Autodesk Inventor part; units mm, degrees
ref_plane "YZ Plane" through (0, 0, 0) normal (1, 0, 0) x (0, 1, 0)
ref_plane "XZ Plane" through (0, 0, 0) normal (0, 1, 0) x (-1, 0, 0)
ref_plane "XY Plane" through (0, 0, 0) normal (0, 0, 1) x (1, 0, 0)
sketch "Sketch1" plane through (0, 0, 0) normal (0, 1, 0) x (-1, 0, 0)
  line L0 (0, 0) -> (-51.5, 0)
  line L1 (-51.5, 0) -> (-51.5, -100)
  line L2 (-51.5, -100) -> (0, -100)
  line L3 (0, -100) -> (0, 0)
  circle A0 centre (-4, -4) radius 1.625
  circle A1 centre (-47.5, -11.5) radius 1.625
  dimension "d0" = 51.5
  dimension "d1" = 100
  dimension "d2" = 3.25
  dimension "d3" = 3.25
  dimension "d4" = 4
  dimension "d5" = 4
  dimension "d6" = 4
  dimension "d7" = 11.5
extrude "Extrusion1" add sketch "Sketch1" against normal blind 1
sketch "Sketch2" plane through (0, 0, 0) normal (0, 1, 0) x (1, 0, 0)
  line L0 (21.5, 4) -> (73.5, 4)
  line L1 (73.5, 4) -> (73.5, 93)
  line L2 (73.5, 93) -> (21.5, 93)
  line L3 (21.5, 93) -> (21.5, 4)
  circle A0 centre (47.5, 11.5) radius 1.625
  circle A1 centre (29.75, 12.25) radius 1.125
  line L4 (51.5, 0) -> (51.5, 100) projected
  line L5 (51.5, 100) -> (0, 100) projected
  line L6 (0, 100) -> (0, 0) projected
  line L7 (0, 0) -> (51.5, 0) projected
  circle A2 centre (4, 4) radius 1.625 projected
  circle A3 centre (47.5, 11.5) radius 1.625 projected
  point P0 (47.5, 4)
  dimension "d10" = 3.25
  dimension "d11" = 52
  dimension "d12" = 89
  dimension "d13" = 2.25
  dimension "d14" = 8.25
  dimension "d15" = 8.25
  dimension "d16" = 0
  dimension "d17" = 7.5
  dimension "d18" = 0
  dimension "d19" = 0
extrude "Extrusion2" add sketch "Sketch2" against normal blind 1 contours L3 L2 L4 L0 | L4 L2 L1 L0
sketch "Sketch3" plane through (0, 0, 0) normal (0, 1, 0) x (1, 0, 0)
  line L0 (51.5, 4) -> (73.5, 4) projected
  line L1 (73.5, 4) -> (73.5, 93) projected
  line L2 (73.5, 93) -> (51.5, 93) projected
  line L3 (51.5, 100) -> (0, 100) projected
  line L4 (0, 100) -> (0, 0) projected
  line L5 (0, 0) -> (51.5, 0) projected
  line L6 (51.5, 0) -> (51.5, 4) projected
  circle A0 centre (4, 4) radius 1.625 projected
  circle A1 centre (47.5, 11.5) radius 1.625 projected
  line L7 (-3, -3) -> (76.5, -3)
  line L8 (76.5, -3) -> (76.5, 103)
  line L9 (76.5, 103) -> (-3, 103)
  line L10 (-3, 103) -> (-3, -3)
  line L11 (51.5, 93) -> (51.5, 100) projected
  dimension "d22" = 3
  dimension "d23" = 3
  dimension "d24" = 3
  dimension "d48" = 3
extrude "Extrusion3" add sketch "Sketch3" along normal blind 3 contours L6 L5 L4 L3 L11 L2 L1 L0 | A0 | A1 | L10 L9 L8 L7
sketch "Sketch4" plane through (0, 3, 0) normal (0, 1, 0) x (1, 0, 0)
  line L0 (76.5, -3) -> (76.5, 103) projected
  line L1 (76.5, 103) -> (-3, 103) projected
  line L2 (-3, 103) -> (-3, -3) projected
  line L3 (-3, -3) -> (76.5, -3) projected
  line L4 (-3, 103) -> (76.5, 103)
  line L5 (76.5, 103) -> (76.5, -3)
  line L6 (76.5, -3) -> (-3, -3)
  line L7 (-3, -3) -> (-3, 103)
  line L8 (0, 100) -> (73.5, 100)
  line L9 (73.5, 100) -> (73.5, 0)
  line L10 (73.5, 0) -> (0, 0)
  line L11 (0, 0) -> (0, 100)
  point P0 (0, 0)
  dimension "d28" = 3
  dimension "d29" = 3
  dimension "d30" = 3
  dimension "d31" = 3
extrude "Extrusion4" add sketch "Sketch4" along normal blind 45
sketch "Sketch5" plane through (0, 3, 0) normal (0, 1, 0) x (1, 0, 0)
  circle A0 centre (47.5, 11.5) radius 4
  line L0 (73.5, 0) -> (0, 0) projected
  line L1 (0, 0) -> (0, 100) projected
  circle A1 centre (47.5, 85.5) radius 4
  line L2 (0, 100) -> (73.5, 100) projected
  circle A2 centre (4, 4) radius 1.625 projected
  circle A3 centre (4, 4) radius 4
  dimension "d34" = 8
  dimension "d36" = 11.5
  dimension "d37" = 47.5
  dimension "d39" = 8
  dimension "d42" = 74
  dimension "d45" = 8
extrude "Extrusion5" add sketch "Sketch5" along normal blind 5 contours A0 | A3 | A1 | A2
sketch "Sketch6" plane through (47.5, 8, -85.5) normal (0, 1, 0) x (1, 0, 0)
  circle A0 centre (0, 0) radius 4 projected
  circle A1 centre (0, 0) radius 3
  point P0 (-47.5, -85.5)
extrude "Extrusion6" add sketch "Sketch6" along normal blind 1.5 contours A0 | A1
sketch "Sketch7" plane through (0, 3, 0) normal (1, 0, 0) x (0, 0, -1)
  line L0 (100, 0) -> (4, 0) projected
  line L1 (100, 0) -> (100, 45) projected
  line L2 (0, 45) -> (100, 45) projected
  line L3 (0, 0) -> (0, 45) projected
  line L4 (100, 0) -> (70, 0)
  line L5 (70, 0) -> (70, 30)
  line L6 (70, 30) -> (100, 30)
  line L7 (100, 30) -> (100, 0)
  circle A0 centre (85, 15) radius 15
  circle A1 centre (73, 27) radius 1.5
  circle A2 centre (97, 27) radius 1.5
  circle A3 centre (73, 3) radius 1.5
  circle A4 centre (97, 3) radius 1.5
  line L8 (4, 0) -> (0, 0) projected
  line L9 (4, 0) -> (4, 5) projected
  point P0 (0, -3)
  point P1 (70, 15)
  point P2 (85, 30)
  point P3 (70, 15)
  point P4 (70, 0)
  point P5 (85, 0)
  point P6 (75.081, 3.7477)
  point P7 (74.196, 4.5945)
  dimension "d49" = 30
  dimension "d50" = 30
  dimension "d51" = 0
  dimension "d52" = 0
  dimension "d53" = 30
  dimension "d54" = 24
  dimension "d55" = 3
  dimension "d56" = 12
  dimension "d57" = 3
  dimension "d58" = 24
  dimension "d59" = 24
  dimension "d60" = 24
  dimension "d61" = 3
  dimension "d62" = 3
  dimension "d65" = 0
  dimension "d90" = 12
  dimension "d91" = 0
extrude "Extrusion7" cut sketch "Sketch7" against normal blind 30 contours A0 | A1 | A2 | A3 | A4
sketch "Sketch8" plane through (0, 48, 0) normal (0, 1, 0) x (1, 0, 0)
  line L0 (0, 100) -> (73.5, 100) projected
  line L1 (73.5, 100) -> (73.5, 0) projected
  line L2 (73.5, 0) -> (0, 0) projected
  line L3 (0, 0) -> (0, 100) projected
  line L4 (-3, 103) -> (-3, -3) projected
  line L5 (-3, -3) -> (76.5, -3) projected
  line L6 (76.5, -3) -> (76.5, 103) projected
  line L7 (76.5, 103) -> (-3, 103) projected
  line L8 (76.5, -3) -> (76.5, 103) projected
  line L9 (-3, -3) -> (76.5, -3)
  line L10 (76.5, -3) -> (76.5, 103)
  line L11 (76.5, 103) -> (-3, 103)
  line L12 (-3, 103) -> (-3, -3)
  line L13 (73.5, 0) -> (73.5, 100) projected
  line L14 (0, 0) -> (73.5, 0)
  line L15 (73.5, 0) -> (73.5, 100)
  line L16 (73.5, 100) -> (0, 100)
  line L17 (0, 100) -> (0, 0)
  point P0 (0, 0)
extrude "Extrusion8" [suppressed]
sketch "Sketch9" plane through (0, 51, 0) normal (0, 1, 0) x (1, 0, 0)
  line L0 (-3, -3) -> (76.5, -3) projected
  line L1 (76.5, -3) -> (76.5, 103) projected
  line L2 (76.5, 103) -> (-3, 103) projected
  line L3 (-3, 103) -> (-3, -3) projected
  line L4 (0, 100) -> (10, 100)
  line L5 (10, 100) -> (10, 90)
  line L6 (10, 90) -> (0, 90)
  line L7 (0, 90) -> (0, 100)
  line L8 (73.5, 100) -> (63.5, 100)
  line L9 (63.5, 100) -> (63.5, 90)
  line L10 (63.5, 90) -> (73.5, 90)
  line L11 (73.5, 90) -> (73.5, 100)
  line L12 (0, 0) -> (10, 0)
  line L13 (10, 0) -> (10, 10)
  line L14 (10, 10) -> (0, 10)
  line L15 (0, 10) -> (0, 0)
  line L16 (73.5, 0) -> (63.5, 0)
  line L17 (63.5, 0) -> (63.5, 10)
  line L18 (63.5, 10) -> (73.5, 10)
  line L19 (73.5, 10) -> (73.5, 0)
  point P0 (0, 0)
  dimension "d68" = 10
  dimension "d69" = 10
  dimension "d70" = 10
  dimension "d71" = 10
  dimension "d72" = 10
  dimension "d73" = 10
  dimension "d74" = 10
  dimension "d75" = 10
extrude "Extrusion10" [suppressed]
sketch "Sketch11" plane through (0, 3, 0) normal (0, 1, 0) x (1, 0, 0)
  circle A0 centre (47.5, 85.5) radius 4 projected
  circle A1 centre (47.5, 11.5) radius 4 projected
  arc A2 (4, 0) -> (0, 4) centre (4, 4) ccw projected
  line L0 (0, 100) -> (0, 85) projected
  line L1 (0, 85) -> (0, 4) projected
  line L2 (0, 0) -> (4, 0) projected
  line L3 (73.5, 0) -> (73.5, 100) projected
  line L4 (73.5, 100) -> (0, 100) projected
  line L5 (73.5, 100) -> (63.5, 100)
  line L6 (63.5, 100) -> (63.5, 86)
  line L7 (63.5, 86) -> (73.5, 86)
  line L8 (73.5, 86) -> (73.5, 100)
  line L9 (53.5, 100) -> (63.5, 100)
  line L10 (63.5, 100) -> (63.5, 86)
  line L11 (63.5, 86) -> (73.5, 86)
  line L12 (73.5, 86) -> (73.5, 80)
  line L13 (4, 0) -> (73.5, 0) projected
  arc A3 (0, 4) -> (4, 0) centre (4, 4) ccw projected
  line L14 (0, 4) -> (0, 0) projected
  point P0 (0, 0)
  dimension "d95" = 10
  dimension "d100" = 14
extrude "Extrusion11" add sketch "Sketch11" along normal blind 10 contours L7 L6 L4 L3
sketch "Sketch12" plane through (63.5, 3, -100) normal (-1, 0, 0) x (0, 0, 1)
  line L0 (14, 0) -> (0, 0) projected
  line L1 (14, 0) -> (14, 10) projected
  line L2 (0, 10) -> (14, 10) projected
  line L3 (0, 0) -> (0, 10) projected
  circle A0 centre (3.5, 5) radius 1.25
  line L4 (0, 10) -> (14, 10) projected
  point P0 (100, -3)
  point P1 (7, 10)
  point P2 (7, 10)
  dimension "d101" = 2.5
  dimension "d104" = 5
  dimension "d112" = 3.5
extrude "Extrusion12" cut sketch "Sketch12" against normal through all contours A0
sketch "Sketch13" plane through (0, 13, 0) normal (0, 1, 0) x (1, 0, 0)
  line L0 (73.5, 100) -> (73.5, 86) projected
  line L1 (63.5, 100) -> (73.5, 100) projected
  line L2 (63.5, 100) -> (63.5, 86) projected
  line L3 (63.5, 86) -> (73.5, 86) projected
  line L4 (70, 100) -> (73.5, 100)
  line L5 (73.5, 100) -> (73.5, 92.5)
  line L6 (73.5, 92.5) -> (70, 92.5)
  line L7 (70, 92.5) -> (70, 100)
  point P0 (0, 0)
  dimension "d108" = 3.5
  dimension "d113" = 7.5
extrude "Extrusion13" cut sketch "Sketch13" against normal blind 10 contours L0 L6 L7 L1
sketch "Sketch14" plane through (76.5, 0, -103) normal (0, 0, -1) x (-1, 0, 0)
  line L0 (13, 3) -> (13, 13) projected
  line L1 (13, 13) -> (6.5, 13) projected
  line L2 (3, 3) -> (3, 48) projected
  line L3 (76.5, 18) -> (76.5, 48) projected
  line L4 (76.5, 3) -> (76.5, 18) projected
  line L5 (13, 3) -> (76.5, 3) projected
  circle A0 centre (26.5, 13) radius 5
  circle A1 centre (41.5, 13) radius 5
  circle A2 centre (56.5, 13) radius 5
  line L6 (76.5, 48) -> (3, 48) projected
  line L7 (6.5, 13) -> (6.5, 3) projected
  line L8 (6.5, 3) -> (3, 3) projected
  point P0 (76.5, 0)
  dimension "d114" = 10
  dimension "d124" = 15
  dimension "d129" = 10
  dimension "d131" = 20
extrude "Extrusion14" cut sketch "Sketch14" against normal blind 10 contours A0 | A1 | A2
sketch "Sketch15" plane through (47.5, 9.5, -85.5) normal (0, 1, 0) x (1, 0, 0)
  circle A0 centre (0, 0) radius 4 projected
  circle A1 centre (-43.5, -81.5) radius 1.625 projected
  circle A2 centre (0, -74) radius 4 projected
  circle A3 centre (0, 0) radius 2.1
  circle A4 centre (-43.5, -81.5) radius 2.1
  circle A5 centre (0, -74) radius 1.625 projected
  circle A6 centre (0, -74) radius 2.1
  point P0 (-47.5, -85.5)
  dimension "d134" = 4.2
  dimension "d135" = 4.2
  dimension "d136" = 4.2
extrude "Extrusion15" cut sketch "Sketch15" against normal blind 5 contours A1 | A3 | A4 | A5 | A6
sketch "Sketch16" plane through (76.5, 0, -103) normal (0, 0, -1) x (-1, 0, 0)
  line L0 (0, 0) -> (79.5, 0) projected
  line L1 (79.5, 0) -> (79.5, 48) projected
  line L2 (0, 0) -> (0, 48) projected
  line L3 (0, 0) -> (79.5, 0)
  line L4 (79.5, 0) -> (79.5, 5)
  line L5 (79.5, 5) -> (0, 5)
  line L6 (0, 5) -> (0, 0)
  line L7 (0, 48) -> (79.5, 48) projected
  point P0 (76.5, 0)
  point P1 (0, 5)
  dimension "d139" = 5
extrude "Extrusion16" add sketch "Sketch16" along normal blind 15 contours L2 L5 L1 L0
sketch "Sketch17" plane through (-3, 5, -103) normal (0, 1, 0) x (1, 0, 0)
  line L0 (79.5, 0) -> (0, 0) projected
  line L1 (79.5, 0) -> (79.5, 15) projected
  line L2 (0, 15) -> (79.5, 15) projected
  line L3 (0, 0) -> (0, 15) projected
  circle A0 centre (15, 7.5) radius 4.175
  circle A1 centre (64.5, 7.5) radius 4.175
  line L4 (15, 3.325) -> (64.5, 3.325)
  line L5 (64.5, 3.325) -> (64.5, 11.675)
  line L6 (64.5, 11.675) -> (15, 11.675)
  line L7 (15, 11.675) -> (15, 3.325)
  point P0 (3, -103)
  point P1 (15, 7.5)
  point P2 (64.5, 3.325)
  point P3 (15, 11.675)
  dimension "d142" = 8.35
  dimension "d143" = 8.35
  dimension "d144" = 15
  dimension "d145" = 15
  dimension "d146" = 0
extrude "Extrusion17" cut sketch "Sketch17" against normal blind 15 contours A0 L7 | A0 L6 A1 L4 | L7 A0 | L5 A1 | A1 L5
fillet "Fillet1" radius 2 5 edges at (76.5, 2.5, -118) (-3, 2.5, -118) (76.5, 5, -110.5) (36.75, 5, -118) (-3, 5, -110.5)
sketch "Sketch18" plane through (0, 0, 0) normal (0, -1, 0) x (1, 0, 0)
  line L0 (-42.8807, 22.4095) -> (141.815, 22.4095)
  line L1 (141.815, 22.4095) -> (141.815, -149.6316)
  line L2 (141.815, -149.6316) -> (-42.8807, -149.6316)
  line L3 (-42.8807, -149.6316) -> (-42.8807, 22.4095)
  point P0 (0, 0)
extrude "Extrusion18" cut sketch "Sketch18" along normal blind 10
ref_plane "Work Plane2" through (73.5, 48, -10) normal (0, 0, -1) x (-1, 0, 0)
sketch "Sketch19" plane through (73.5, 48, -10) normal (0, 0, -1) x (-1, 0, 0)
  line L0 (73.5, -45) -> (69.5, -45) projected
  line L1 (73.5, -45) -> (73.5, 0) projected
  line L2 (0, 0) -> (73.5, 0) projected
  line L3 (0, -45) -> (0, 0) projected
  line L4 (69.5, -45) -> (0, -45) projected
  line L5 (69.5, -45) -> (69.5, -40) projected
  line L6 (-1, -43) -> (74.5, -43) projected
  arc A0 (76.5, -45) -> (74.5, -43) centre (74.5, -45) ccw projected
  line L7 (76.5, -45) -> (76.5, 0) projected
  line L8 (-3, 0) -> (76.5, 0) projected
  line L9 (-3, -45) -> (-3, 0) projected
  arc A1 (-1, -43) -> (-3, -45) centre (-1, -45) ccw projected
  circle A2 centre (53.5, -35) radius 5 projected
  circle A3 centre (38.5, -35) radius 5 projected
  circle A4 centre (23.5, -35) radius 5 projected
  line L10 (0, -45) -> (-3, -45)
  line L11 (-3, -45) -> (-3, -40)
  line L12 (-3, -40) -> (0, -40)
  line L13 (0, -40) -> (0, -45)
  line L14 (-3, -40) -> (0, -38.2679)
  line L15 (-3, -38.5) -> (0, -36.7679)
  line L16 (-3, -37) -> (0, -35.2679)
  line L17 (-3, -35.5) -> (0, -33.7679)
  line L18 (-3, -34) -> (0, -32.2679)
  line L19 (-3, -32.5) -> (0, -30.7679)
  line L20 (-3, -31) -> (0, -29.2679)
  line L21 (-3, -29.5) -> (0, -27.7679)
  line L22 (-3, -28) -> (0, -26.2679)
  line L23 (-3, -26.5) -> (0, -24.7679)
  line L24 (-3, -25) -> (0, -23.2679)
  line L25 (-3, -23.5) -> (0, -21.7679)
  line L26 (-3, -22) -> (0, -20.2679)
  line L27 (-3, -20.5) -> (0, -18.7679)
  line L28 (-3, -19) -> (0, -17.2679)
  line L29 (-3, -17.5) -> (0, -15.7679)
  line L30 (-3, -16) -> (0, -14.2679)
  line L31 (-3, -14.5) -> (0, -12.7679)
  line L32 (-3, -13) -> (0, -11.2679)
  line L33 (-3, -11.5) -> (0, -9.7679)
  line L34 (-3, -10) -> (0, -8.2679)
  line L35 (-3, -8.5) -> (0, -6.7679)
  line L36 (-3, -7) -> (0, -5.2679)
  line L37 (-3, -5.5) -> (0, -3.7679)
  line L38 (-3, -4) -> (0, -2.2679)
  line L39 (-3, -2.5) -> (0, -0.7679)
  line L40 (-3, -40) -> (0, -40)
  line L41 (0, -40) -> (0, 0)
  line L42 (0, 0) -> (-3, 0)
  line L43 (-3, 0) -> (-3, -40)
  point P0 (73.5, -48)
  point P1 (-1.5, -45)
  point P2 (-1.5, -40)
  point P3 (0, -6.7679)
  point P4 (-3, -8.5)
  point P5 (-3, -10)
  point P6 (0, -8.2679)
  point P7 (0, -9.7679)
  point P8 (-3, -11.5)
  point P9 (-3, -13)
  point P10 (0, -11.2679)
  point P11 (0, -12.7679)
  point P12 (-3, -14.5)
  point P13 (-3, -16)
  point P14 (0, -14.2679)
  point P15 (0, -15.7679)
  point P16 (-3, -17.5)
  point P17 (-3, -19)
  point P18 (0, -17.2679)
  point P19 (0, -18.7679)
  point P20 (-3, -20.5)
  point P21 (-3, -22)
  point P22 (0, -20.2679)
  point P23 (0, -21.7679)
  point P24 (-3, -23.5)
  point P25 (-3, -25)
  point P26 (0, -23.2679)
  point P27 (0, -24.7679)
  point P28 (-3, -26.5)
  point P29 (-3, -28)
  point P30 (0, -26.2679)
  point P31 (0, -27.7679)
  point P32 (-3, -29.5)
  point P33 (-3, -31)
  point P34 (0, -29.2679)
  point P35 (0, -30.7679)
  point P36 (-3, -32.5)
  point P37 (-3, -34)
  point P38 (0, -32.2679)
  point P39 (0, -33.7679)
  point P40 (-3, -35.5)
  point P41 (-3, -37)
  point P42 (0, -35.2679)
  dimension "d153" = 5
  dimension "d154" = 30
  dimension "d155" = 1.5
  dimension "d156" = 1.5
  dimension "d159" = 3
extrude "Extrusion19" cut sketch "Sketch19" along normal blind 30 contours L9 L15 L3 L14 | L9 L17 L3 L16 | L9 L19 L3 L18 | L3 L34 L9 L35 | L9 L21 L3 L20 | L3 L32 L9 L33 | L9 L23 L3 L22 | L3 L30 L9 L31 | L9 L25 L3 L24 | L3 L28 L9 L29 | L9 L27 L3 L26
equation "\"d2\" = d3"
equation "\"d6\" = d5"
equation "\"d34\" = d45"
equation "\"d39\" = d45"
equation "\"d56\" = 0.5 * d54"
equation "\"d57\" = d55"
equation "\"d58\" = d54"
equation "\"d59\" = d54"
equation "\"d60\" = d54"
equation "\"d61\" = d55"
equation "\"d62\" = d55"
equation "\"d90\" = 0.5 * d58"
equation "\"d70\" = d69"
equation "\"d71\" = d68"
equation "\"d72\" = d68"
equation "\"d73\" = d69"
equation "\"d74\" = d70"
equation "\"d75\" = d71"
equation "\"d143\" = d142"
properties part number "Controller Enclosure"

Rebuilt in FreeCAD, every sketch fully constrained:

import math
import FreeCAD as App
import Part
import Sketcher

V = App.Vector
Q = App.Units.Quantity


def edges_at(feature, points):
    """Names of the edges that pass closest to the given points."""
    edges = feature.Shape.Edges
    near = lambda p: min(range(len(edges)), key=lambda i: edges[i].distToShape(Part.Vertex(*p))[0])
    return sorted({f"Edge{near(p) + 1}" for p in points})

doc = App.newDocument("Part")
body = doc.addObject("PartDesign::Body", "Body")

# Sketch on XZ plane
sketch1 = body.newObject("Sketcher::SketchObject", "Sketch")
sketch1.AttachmentSupport = (doc.getObject("XZ_Plane"), [""])
sketch1.MapMode = "FlatFace"
sketch1.addGeometry(Part.LineSegment(V(0, -100, 0), V(0, 0, 0)), False)
sketch1.addGeometry(Part.LineSegment(V(0, 0, 0), V(51.5, 0, 0)), False)
sketch1.addGeometry(Part.LineSegment(V(51.5, 0, 0), V(51.5, -100, 0)), False)
sketch1.addGeometry(Part.LineSegment(V(51.5, -100, 0), V(0, -100, 0)), False)
sketch1.addGeometry(Part.Circle(V(47.5, -11.5, 0), V(0, 0, 1), 1.6), False)
sketch1.addGeometry(Part.Circle(V(4, -4, 0), V(0, 0, 1), 1.6), False)
sketch1.addConstraint(Sketcher.Constraint("Coincident", 0, 2, 1, 1))
sketch1.addConstraint(Sketcher.Constraint("Coincident", 1, 2, 2, 1))
sketch1.addConstraint(Sketcher.Constraint("Coincident", 2, 2, 3, 1))
sketch1.addConstraint(Sketcher.Constraint("Coincident", 3, 2, 0, 1))
sketch1.addConstraint(Sketcher.Constraint("Vertical", 0))
sketch1.addConstraint(Sketcher.Constraint("Horizontal", 1))
sketch1.addConstraint(Sketcher.Constraint("Vertical", 2))
sketch1.addConstraint(Sketcher.Constraint("Horizontal", 3))
sketch1.addConstraint(Sketcher.Constraint("Coincident", 0, 2, -1, 1))
sketch1.addConstraint(Sketcher.Constraint("Equal", 4, 5))
sketch1.addConstraint(Sketcher.Constraint("Diameter", 4, Q("3.25 mm")))
sketch1.addConstraint(Sketcher.Constraint("DistanceY", 0, 1, 0, 2, Q("100 mm")))
sketch1.addConstraint(Sketcher.Constraint("DistanceX", 1, 1, 1, 2, Q("51.5 mm")))
sketch1.addConstraint(Sketcher.Constraint("DistanceX", -1, 1, 5, 3, Q("4 mm")))
sketch1.addConstraint(Sketcher.Constraint("DistanceY", 5, 3, -1, 1, Q("4 mm")))
sketch1.addConstraint(Sketcher.Constraint("DistanceX", 4, 3, 1, 2, Q("4 mm")))
sketch1.addConstraint(Sketcher.Constraint("DistanceY", 4, 3, -1, 1, Q("11.5 mm")))
pad1 = body.newObject("PartDesign::Pad", "Pad")
pad1.Profile = sketch1
pad1.Length = 1

# Sketch on XZ plane
sketch2 = body.newObject("Sketcher::SketchObject", "Sketch001")
sketch2.AttachmentSupport = (doc.getObject("XZ_Plane"), [""])
sketch2.MapMode = "FlatFace"
sketch2.addGeometry(Part.LineSegment(V(21.5, -93, 0), V(21.5, -4, 0)), False)
sketch2.addGeometry(Part.LineSegment(V(21.5, -4, 0), V(73.5, -4, 0)), False)
sketch2.addGeometry(Part.LineSegment(V(73.5, -4, 0), V(73.5, -93, 0)), False)
sketch2.addGeometry(Part.LineSegment(V(73.5, -93, 0), V(21.5, -93, 0)), False)
sketch2.addGeometry(Part.Circle(V(29.8, -12.2, 0), V(0, 0, 1), 1.1), False)
sketch2.addGeometry(Part.Circle(V(47.5, -11.5, 0), V(0, 0, 1), 1.6), False)
sketch2.addConstraint(Sketcher.Constraint("Coincident", 0, 2, 1, 1))
sketch2.addConstraint(Sketcher.Constraint("Coincident", 1, 2, 2, 1))
sketch2.addConstraint(Sketcher.Constraint("Coincident", 2, 2, 3, 1))
sketch2.addConstraint(Sketcher.Constraint("Coincident", 3, 2, 0, 1))
sketch2.addConstraint(Sketcher.Constraint("Vertical", 0))
sketch2.addConstraint(Sketcher.Constraint("Horizontal", 1))
sketch2.addConstraint(Sketcher.Constraint("Vertical", 2))
sketch2.addConstraint(Sketcher.Constraint("Horizontal", 3))
sketch2.addConstraint(Sketcher.Constraint("Diameter", 4, Q("2.25 mm")))
sketch2.addConstraint(Sketcher.Constraint("Diameter", 5, Q("3.25 mm")))
sketch2.addConstraint(Sketcher.Constraint("DistanceX", 1, 1, 1, 2, Q("52 mm")))
sketch2.addConstraint(Sketcher.Constraint("DistanceY", 0, 1, 0, 2, Q("89 mm")))
sketch2.addConstraint(Sketcher.Constraint("DistanceY", 5, 3, 0, 2, Q("7.5 mm")))
sketch2.addConstraint(Sketcher.Constraint("DistanceX", 0, 2, 4, 3, Q("8.25 mm")))
sketch2.addConstraint(Sketcher.Constraint("DistanceY", 4, 3, 0, 2, Q("8.25 mm")))
sketch2.addConstraint(Sketcher.Constraint("DistanceY", 0, 2, -1, 1, Q("4 mm")))
sketch2.addConstraint(Sketcher.Constraint("DistanceX", 0, 2, 5, 3, Q("26 mm")))
sketch2.addConstraint(Sketcher.Constraint("DistanceX", -1, 1, 5, 3, Q("47.5 mm")))
pad2 = body.newObject("PartDesign::Pad", "Pad001")
pad2.Profile = sketch2
pad2.Length = 1

# Sketch on XZ plane
sketch3 = body.newObject("Sketcher::SketchObject", "Sketch002")
sketch3.AttachmentSupport = (doc.getObject("XZ_Plane"), [""])
sketch3.MapMode = "FlatFace"
sketch3.addGeometry(Part.LineSegment(V(-3, -103, 0), V(-3, 3, 0)), False)
sketch3.addGeometry(Part.LineSegment(V(-3, 3, 0), V(76, 3, 0)), False)
sketch3.addGeometry(Part.LineSegment(V(76, 3, 0), V(76, -103, 0)), False)
sketch3.addGeometry(Part.LineSegment(V(76, -103, 0), V(-3, -103, 0)), False)
sketch3.addConstraint(Sketcher.Constraint("Coincident", 0, 2, 1, 1))
sketch3.addConstraint(Sketcher.Constraint("Coincident", 1, 2, 2, 1))
sketch3.addConstraint(Sketcher.Constraint("Coincident", 2, 2, 3, 1))
sketch3.addConstraint(Sketcher.Constraint("Coincident", 3, 2, 0, 1))
sketch3.addConstraint(Sketcher.Constraint("Vertical", 0))
sketch3.addConstraint(Sketcher.Constraint("Horizontal", 1))
sketch3.addConstraint(Sketcher.Constraint("Vertical", 2))
sketch3.addConstraint(Sketcher.Constraint("Horizontal", 3))
sketch3.addConstraint(Sketcher.Constraint("DistanceX", 0, 2, -1, 1, Q("3 mm")))
sketch3.addConstraint(Sketcher.Constraint("DistanceY", -1, 1, 0, 2, Q("3 mm")))
sketch3.addConstraint(Sketcher.Constraint("DistanceY", 0, 1, 0, 2, Q("106 mm")))
sketch3.addConstraint(Sketcher.Constraint("DistanceX", 1, 1, 1, 2, Q("79.5 mm")))
pad3 = body.newObject("PartDesign::Pad", "Pad002")
pad3.Profile = sketch3
pad3.Length = 3
pad3.Reversed = True

# Sketch on XZ plane
sketch4 = body.newObject("Sketcher::SketchObject", "Sketch003")
sketch4.AttachmentSupport = (doc.getObject("XZ_Plane"), [""])
sketch4.MapMode = "FlatFace"
sketch4.AttachmentOffset = App.Placement(V(0, 0, -3), App.Rotation())
sketch4.addGeometry(Part.LineSegment(V(-3, 3, 0), V(76, 3, 0)), False)
sketch4.addGeometry(Part.LineSegment(V(76, 3, 0), V(76, -103, 0)), False)
sketch4.addGeometry(Part.LineSegment(V(76, -103, 0), V(-3, -103, 0)), False)
sketch4.addGeometry(Part.LineSegment(V(-3, -103, 0), V(-3, 3, 0)), False)
sketch4.addGeometry(Part.LineSegment(V(0, 0, 0), V(0, -100, 0)), False)
sketch4.addGeometry(Part.LineSegment(V(0, -100, 0), V(74, -100, 0)), False)
sketch4.addGeometry(Part.LineSegment(V(74, -100, 0), V(74, 0, 0)), False)
sketch4.addGeometry(Part.LineSegment(V(74, 0, 0), V(0, 0, 0)), False)
sketch4.addConstraint(Sketcher.Constraint("Coincident", 0, 2, 1, 1))
sketch4.addConstraint(Sketcher.Constraint("Coincident", 1, 2, 2, 1))
sketch4.addConstraint(Sketcher.Constraint("Coincident", 2, 2, 3, 1))
sketch4.addConstraint(Sketcher.Constraint("Coincident", 3, 2, 0, 1))
sketch4.addConstraint(Sketcher.Constraint("Coincident", 4, 2, 5, 1))
sketch4.addConstraint(Sketcher.Constraint("Coincident", 5, 2, 6, 1))
sketch4.addConstraint(Sketcher.Constraint("Coincident", 6, 2, 7, 1))
sketch4.addConstraint(Sketcher.Constraint("Coincident", 7, 2, 4, 1))
sketch4.addConstraint(Sketcher.Constraint("Horizontal", 0))
sketch4.addConstraint(Sketcher.Constraint("Vertical", 1))
sketch4.addConstraint(Sketcher.Constraint("Horizontal", 2))
sketch4.addConstraint(Sketcher.Constraint("Vertical", 3))
sketch4.addConstraint(Sketcher.Constraint("Vertical", 4))
sketch4.addConstraint(Sketcher.Constraint("Horizontal", 5))
sketch4.addConstraint(Sketcher.Constraint("Vertical", 6))
sketch4.addConstraint(Sketcher.Constraint("Horizontal", 7))
sketch4.addConstraint(Sketcher.Constraint("Coincident", 7, 2, -1, 1))
sketch4.addConstraint(Sketcher.Constraint("DistanceY", -1, 1, 0, 2, Q("3 mm")))
sketch4.addConstraint(Sketcher.Constraint("DistanceX", 2, 2, -1, 1, Q("3 mm")))
sketch4.addConstraint(Sketcher.Constraint("DistanceY", 2, 2, 4, 2, Q("3 mm")))
sketch4.addConstraint(Sketcher.Constraint("DistanceX", 5, 2, 1, 2, Q("3 mm")))
sketch4.addConstraint(Sketcher.Constraint("DistanceY", 1, 2, 1, 1, Q("106 mm")))
sketch4.addConstraint(Sketcher.Constraint("DistanceX", 0, 1, 0, 2, Q("79.5 mm")))
pad4 = body.newObject("PartDesign::Pad", "Pad003")
pad4.Profile = sketch4
pad4.Length = 45
pad4.Reversed = True

# Sketch on XZ plane
sketch5 = body.newObject("Sketcher::SketchObject", "Sketch004")
sketch5.AttachmentSupport = (doc.getObject("XZ_Plane"), [""])
sketch5.MapMode = "FlatFace"
sketch5.AttachmentOffset = App.Placement(V(0, 0, -3), App.Rotation())
sketch5.addGeometry(Part.Circle(V(47.5, -11.5, 0), V(0, 0, 1), 4), False)
sketch5.addGeometry(Part.Circle(V(4, -4, 0), V(0, 0, 1), 4), False)
sketch5.addGeometry(Part.Circle(V(47.5, -85.5, 0), V(0, 0, 1), 4), False)
sketch5.addConstraint(Sketcher.Constraint("Equal", 0, 1))
sketch5.addConstraint(Sketcher.Constraint("Equal", 1, 2))
sketch5.addConstraint(Sketcher.Constraint("Vertical", 0, 3, 2, 3))
sketch5.addConstraint(Sketcher.Constraint("Diameter", 0, Q("8 mm")))
sketch5.addConstraint(Sketcher.Constraint("DistanceY", 2, 3, 0, 3, Q("74 mm")))
sketch5.addConstraint(Sketcher.Constraint("DistanceX", -1, 1, 0, 3, Q("47.5 mm")))
sketch5.addConstraint(Sketcher.Constraint("DistanceY", 0, 3, -1, 1, Q("11.5 mm")))
sketch5.addConstraint(Sketcher.Constraint("DistanceX", -1, 1, 1, 3, Q("4 mm")))
sketch5.addConstraint(Sketcher.Constraint("DistanceY", 1, 3, -1, 1, Q("4 mm")))
pad5 = body.newObject("PartDesign::Pad", "Pad004")
pad5.Profile = sketch5
pad5.Length = 5
pad5.Reversed = True

# Sketch on XZ plane
sketch6 = body.newObject("Sketcher::SketchObject", "Sketch005")
sketch6.AttachmentSupport = (doc.getObject("XZ_Plane"), [""])
sketch6.MapMode = "FlatFace"
sketch6.AttachmentOffset = App.Placement(V(0, 0, -8), App.Rotation())
sketch6.addGeometry(Part.Circle(V(47.5, -85.5, 0), V(0, 0, 1), 4), False)
sketch6.addConstraint(Sketcher.Constraint("Diameter", 0, Q("8 mm")))
sketch6.addConstraint(Sketcher.Constraint("DistanceX", -1, 1, 0, 3, Q("47.5 mm")))
sketch6.addConstraint(Sketcher.Constraint("DistanceY", 0, 3, -1, 1, Q("85.5 mm")))
pad6 = body.newObject("PartDesign::Pad", "Pad005")
pad6.Profile = sketch6
pad6.Length = 1.5
pad6.Reversed = True

# Sketch on YZ plane
sketch7 = body.newObject("Sketcher::SketchObject", "Sketch006")
sketch7.AttachmentSupport = (doc.getObject("YZ_Plane"), [""])
sketch7.MapMode = "FlatFace"
sketch7.addGeometry(Part.Circle(V(18, -85, 0), V(0, 0, 1), 15), False)
sketch7.addGeometry(Part.Circle(V(30, -73, 0), V(0, 0, 1), 1.5), False)
sketch7.addGeometry(Part.Circle(V(30, -97, 0), V(0, 0, 1), 1.5), False)
sketch7.addGeometry(Part.Circle(V(6, -73, 0), V(0, 0, 1), 1.5), False)
sketch7.addGeometry(Part.Circle(V(6, -97, 0), V(0, 0, 1), 1.5), False)
sketch7.addConstraint(Sketcher.Constraint("Equal", 1, 2))
sketch7.addConstraint(Sketcher.Constraint("Equal", 2, 3))
sketch7.addConstraint(Sketcher.Constraint("Equal", 3, 4))
sketch7.addConstraint(Sketcher.Constraint("Horizontal", 1, 3, 3, 3))
sketch7.addConstraint(Sketcher.Constraint("Horizontal", 2, 3, 4, 3))
sketch7.addConstraint(Sketcher.Constraint("Vertical", 1, 3, 2, 3))
sketch7.addConstraint(Sketcher.Constraint("Vertical", 3, 3, 4, 3))
sketch7.addConstraint(Sketcher.Constraint("Diameter", 0, Q("30 mm")))
sketch7.addConstraint(Sketcher.Constraint("Diameter", 1, Q("3 mm")))
sketch7.addConstraint(Sketcher.Constraint("DistanceX", -1, 1, 1, 3, Q("30 mm")))
sketch7.addConstraint(Sketcher.Constraint("DistanceX", 0, 3, 1, 3, Q("12 mm")))
sketch7.addConstraint(Sketcher.Constraint("DistanceY", 0, 3, 1, 3, Q("12 mm")))
sketch7.addConstraint(Sketcher.Constraint("DistanceY", 2, 3, 0, 3, Q("12 mm")))
sketch7.addConstraint(Sketcher.Constraint("DistanceX", 3, 3, 0, 3, Q("12 mm")))
sketch7.addConstraint(Sketcher.Constraint("DistanceY", 0, 3, -1, 1, Q("85 mm")))
pocket1 = body.newObject("PartDesign::Pocket", "Pocket")
pocket1.Profile = sketch7
pocket1.Length = 30

# Sketch on XZ plane
sketch8 = body.newObject("Sketcher::SketchObject", "Sketch007")
sketch8.AttachmentSupport = (doc.getObject("XZ_Plane"), [""])
sketch8.MapMode = "FlatFace"
sketch8.AttachmentOffset = App.Placement(V(0, 0, -3), App.Rotation())
sketch8.addGeometry(Part.LineSegment(V(64, -86, 0), V(74, -86, 0)), False)
sketch8.addGeometry(Part.LineSegment(V(74, -86, 0), V(74, -100, 0)), False)
sketch8.addGeometry(Part.LineSegment(V(74, -100, 0), V(64, -100, 0)), False)
sketch8.addGeometry(Part.LineSegment(V(64, -100, 0), V(64, -86, 0)), False)
sketch8.addConstraint(Sketcher.Constraint("Coincident", 0, 2, 1, 1))
sketch8.addConstraint(Sketcher.Constraint("Coincident", 1, 2, 2, 1))
sketch8.addConstraint(Sketcher.Constraint("Coincident", 2, 2, 3, 1))
sketch8.addConstraint(Sketcher.Constraint("Coincident", 3, 2, 0, 1))
sketch8.addConstraint(Sketcher.Constraint("Horizontal", 0))
sketch8.addConstraint(Sketcher.Constraint("Vertical", 1))
sketch8.addConstraint(Sketcher.Constraint("Horizontal", 2))
sketch8.addConstraint(Sketcher.Constraint("Vertical", 3))
sketch8.addConstraint(Sketcher.Constraint("DistanceX", 0, 1, 0, 2, Q("10 mm")))
sketch8.addConstraint(Sketcher.Constraint("DistanceY", 1, 2, 1, 1, Q("14 mm")))
sketch8.addConstraint(Sketcher.Constraint("DistanceY", 0, 2, -1, 1, Q("86 mm")))
sketch8.addConstraint(Sketcher.Constraint("DistanceX", -1, 1, 0, 2, Q("73.5 mm")))
pad7 = body.newObject("PartDesign::Pad", "Pad006")
pad7.Profile = sketch8
pad7.Length = 10
pad7.Reversed = True

# Sketch on YZ plane
sketch9 = body.newObject("Sketcher::SketchObject", "Sketch008")
sketch9.AttachmentSupport = (doc.getObject("YZ_Plane"), [""])
sketch9.MapMode = "FlatFace"
sketch9.AttachmentOffset = App.Placement(V(0, 0, 63.5), App.Rotation())
sketch9.addGeometry(Part.Circle(V(8, -96.5, 0), V(0, 0, 1), 1.2), False)
sketch9.addConstraint(Sketcher.Constraint("Diameter", 0, Q("2.5 mm")))
sketch9.addConstraint(Sketcher.Constraint("DistanceX", -1, 1, 0, 3, Q("8 mm")))
sketch9.addConstraint(Sketcher.Constraint("DistanceY", 0, 3, -1, 1, Q("96.5 mm")))
pocket2 = body.newObject("PartDesign::Pocket", "Pocket001")
pocket2.Profile = sketch9
pocket2.Type = "ThroughAll"
pocket2.Reversed = True

# Sketch on XZ plane
sketch10 = body.newObject("Sketcher::SketchObject", "Sketch009")
sketch10.AttachmentSupport = (doc.getObject("XZ_Plane"), [""])
sketch10.MapMode = "FlatFace"
sketch10.AttachmentOffset = App.Placement(V(0, 0, -13), App.Rotation())
sketch10.addGeometry(Part.LineSegment(V(73.5, -92.5, 0), V(73.5, -100, 0)), False)
sketch10.addGeometry(Part.LineSegment(V(73.5, -100, 0), V(70, -100, 0)), False)
sketch10.addGeometry(Part.LineSegment(V(70, -100, 0), V(70, -92.5, 0)), False)
sketch10.addGeometry(Part.LineSegment(V(70, -92.5, 0), V(73.5, -92.5, 0)), False)
sketch10.addConstraint(Sketcher.Constraint("Coincident", 0, 2, 1, 1))
sketch10.addConstraint(Sketcher.Constraint("Coincident", 1, 2, 2, 1))
sketch10.addConstraint(Sketcher.Constraint("Coincident", 2, 2, 3, 1))
sketch10.addConstraint(Sketcher.Constraint("Coincident", 3, 2, 0, 1))
sketch10.addConstraint(Sketcher.Constraint("Vertical", 0))
sketch10.addConstraint(Sketcher.Constraint("Horizontal", 1))
sketch10.addConstraint(Sketcher.Constraint("Vertical", 2))
sketch10.addConstraint(Sketcher.Constraint("Horizontal", 3))
sketch10.addConstraint(Sketcher.Constraint("DistanceX", 1, 2, 1, 1, Q("3.5 mm")))
sketch10.addConstraint(Sketcher.Constraint("DistanceY", 0, 2, 0, 1, Q("7.5 mm")))
sketch10.addConstraint(Sketcher.Constraint("DistanceY", 0, 2, -1, 1, Q("100 mm")))
sketch10.addConstraint(Sketcher.Constraint("DistanceX", -1, 1, 1, 2, Q("70 mm")))
pocket3 = body.newObject("PartDesign::Pocket", "Pocket002")
pocket3.Profile = sketch10
pocket3.Length = 10
pocket3.Reversed = True

# Sketch on XY plane
sketch11 = body.newObject("Sketcher::SketchObject", "Sketch010")
sketch11.AttachmentSupport = (doc.getObject("XY_Plane"), [""])
sketch11.MapMode = "FlatFace"
sketch11.AttachmentOffset = App.Placement(V(0, 0, -103), App.Rotation())
sketch11.addGeometry(Part.Circle(V(50, 13, 0), V(0, 0, 1), 5), False)
sketch11.addGeometry(Part.Circle(V(35, 13, 0), V(0, 0, 1), 5), False)
sketch11.addGeometry(Part.Circle(V(20, 13, 0), V(0, 0, 1), 5), False)
sketch11.addConstraint(Sketcher.Constraint("Equal", 0, 1))
sketch11.addConstraint(Sketcher.Constraint("Equal", 1, 2))
sketch11.addConstraint(Sketcher.Constraint("Horizontal", 0, 3, 1, 3))
sketch11.addConstraint(Sketcher.Constraint("Horizontal", 1, 3, 2, 3))
sketch11.addConstraint(Sketcher.Constraint("Diameter", 0, Q("10 mm")))
sketch11.addConstraint(Sketcher.Constraint("DistanceX", -1, 1, 2, 3, Q("20 mm")))
sketch11.addConstraint(Sketcher.Constraint("DistanceX", 1, 3, 0, 3, Q("15 mm")))
sketch11.addConstraint(Sketcher.Constraint("DistanceX", 2, 3, 1, 3, Q("15 mm")))
sketch11.addConstraint(Sketcher.Constraint("DistanceY", -1, 1, 0, 3, Q("13 mm")))
pocket4 = body.newObject("PartDesign::Pocket", "Pocket003")
pocket4.Profile = sketch11
pocket4.Length = 10
pocket4.Reversed = True

# Sketch on XZ plane
sketch12 = body.newObject("Sketcher::SketchObject", "Sketch011")
sketch12.AttachmentSupport = (doc.getObject("XZ_Plane"), [""])
sketch12.MapMode = "FlatFace"
sketch12.AttachmentOffset = App.Placement(V(0, 0, -9.5), App.Rotation())
sketch12.addGeometry(Part.Circle(V(4, -4, 0), V(0, 0, 1), 2.1), False)
sketch12.addGeometry(Part.Circle(V(47.5, -85.5, 0), V(0, 0, 1), 2.1), False)
sketch12.addGeometry(Part.Circle(V(47.5, -11.5, 0), V(0, 0, 1), 2.1), False)
sketch12.addConstraint(Sketcher.Constraint("Equal", 0, 1))
sketch12.addConstraint(Sketcher.Constraint("Equal", 1, 2))
sketch12.addConstraint(Sketcher.Constraint("Vertical", 1, 3, 2, 3))
sketch12.addConstraint(Sketcher.Constraint("Diameter", 0, Q("4.2 mm")))
sketch12.addConstraint(Sketcher.Constraint("DistanceX", -1, 1, 0, 3, Q("4 mm")))
sketch12.addConstraint(Sketcher.Constraint("DistanceY", 0, 3, -1, 1, Q("4 mm")))
sketch12.addConstraint(Sketcher.Constraint("DistanceY", 1, 3, 2, 3, Q("74 mm")))
sketch12.addConstraint(Sketcher.Constraint("DistanceX", -1, 1, 1, 3, Q("47.5 mm")))
sketch12.addConstraint(Sketcher.Constraint("DistanceY", 1, 3, -1, 1, Q("85.5 mm")))
pocket5 = body.newObject("PartDesign::Pocket", "Pocket004")
pocket5.Profile = sketch12
pocket5.Length = 5
pocket5.Reversed = True

# Sketch on XY plane
sketch13 = body.newObject("Sketcher::SketchObject", "Sketch012")
sketch13.AttachmentSupport = (doc.getObject("XY_Plane"), [""])
sketch13.MapMode = "FlatFace"
sketch13.AttachmentOffset = App.Placement(V(0, 0, -103), App.Rotation())
sketch13.addGeometry(Part.LineSegment(V(76, 5, 0), V(76, 0, 0)), False)
sketch13.addGeometry(Part.LineSegment(V(76, 0, 0), V(-3, 0, 0)), False)
sketch13.addGeometry(Part.LineSegment(V(-3, 0, 0), V(-3, 5, 0)), False)
sketch13.addGeometry(Part.LineSegment(V(-3, 5, 0), V(76, 5, 0)), False)
sketch13.addConstraint(Sketcher.Constraint("Coincident", 0, 2, 1, 1))
sketch13.addConstraint(Sketcher.Constraint("Coincident", 1, 2, 2, 1))
sketch13.addConstraint(Sketcher.Constraint("Coincident", 2, 2, 3, 1))
sketch13.addConstraint(Sketcher.Constraint("Coincident", 3, 2, 0, 1))
sketch13.addConstraint(Sketcher.Constraint("Vertical", 0))
sketch13.addConstraint(Sketcher.Constraint("Horizontal", 1))
sketch13.addConstraint(Sketcher.Constraint("Vertical", 2))
sketch13.addConstraint(Sketcher.Constraint("Horizontal", 3))
sketch13.addConstraint(Sketcher.Constraint("PointOnObject", 0, 2, -1))
sketch13.addConstraint(Sketcher.Constraint("DistanceY", 0, 2, 0, 1, Q("5 mm")))
sketch13.addConstraint(Sketcher.Constraint("DistanceX", 1, 2, 1, 1, Q("79.5 mm")))
sketch13.addConstraint(Sketcher.Constraint("DistanceX", 1, 2, -1, 1, Q("3 mm")))
pad8 = body.newObject("PartDesign::Pad", "Pad007")
pad8.Profile = sketch13
pad8.Length = 15
pad8.Reversed = True

# Sketch on XZ plane
sketch14 = body.newObject("Sketcher::SketchObject", "Sketch013")
sketch14.AttachmentSupport = (doc.getObject("XZ_Plane"), [""])
sketch14.MapMode = "FlatFace"
sketch14.AttachmentOffset = App.Placement(V(0, 0, -5), App.Rotation())
sketch14.addGeometry(Part.LineSegment(V(12, -106.3, 0), V(61.5, -106.3, 0)), False)
sketch14.addGeometry(Part.ArcOfCircle(Part.Circle(V(61.5, -110.5, 0), V(0, 0, 1), 4.2), math.radians(-90), math.radians(90)), False)
sketch14.addGeometry(Part.LineSegment(V(61.5, -114.7, 0), V(12, -114.7, 0)), False)
sketch14.addGeometry(Part.ArcOfCircle(Part.Circle(V(12, -110.5, 0), V(0, 0, 1), 4.2), math.radians(90), math.radians(270)), False)
sketch14.addConstraint(Sketcher.Constraint("Tangent", 0, 2, 1, 2))
sketch14.addConstraint(Sketcher.Constraint("Tangent", 1, 1, 2, 1))
sketch14.addConstraint(Sketcher.Constraint("Tangent", 2, 2, 3, 2))
sketch14.addConstraint(Sketcher.Constraint("Tangent", 3, 1, 0, 1))
sketch14.addConstraint(Sketcher.Constraint("Horizontal", 0))
sketch14.addConstraint(Sketcher.Constraint("Horizontal", 2))
sketch14.addConstraint(Sketcher.Constraint("Radius", 1, Q("4.175 mm")))
sketch14.addConstraint(Sketcher.Constraint("DistanceX", 0, 1, 0, 2, Q("49.5 mm")))
sketch14.addConstraint(Sketcher.Constraint("DistanceX", -1, 1, 3, 3, Q("12 mm")))
sketch14.addConstraint(Sketcher.Constraint("DistanceY", 1, 3, -1, 1, Q("110.5 mm")))
pocket6 = body.newObject("PartDesign::Pocket", "Pocket005")
pocket6.Profile = sketch14
pocket6.Length = 15
pocket6.Reversed = True
doc.recompute()

fillet = body.newObject("PartDesign::Fillet", "Fillet")
fillet.Base = (pocket6, edges_at(pocket6, [
    (76.5, 2.5, -118),
    (-3, 2.5, -118),
    (76.5, 5, -110.5),
    (36.75, 5, -118),
    (-3, 5, -110.5),
]))
fillet.Radius = 2

# Sketch on XZ plane
sketch15 = body.newObject("Sketcher::SketchObject", "Sketch014")
sketch15.AttachmentSupport = (doc.getObject("XZ_Plane"), [""])
sketch15.MapMode = "FlatFace"
sketch15.addGeometry(Part.LineSegment(V(142, 22, 0), V(-43, 22, 0)), False)
sketch15.addGeometry(Part.LineSegment(V(-43, 22, 0), V(-43, -150, 0)), False)
sketch15.addGeometry(Part.LineSegment(V(-43, -150, 0), V(142, -150, 0)), False)
sketch15.addGeometry(Part.LineSegment(V(142, -150, 0), V(142, 22, 0)), False)
sketch15.addConstraint(Sketcher.Constraint("Coincident", 0, 2, 1, 1))
sketch15.addConstraint(Sketcher.Constraint("Coincident", 1, 2, 2, 1))
sketch15.addConstraint(Sketcher.Constraint("Coincident", 2, 2, 3, 1))
sketch15.addConstraint(Sketcher.Constraint("Coincident", 3, 2, 0, 1))
sketch15.addConstraint(Sketcher.Constraint("Horizontal", 0))
sketch15.addConstraint(Sketcher.Constraint("Vertical", 1))
sketch15.addConstraint(Sketcher.Constraint("Horizontal", 2))
sketch15.addConstraint(Sketcher.Constraint("Vertical", 3))
sketch15.addConstraint(Sketcher.Constraint("DistanceY", 1, 2, 1, 1, Q("172.041 mm")))
sketch15.addConstraint(Sketcher.Constraint("DistanceX", 0, 2, 0, 1, Q("184.6957 mm")))
sketch15.addConstraint(Sketcher.Constraint("DistanceX", -1, 1, 2, 2, Q("141.815 mm")))
sketch15.addConstraint(Sketcher.Constraint("DistanceY", -1, 1, 0, 2, Q("22.4095 mm")))
pocket7 = body.newObject("PartDesign::Pocket", "Pocket006")
pocket7.Profile = sketch15
pocket7.Length = 10
pocket7.Reversed = True

# Sketch on XY plane
sketch16 = body.newObject("Sketcher::SketchObject", "Sketch015")
sketch16.AttachmentSupport = (doc.getObject("XY_Plane"), [""])
sketch16.MapMode = "FlatFace"
sketch16.AttachmentOffset = App.Placement(V(0, 0, -10), App.Rotation())
sketch16.addGeometry(Part.LineSegment(V(76.5, 9.5, 0), V(76.5, 8, 0)), False)
sketch16.addGeometry(Part.LineSegment(V(76.5, 8, 0), V(73.5, 9.7, 0)), False)
sketch16.addGeometry(Part.LineSegment(V(73.5, 9.7, 0), V(73.5, 11.2, 0)), False)
sketch16.addGeometry(Part.LineSegment(V(73.5, 11.2, 0), V(76.5, 9.5, 0)), False)
sketch16.addGeometry(Part.LineSegment(V(76.5, 12.5, 0), V(76.5, 11, 0)), False)
sketch16.addGeometry(Part.LineSegment(V(76.5, 11, 0), V(73.5, 12.7, 0)), False)
sketch16.addGeometry(Part.LineSegment(V(73.5, 12.7, 0), V(73.5, 14.2, 0)), False)
sketch16.addGeometry(Part.LineSegment(V(73.5, 14.2, 0), V(76.5, 12.5, 0)), False)
sketch16.addGeometry(Part.LineSegment(V(76.5, 15.5, 0), V(76.5, 14, 0)), False)
sketch16.addGeometry(Part.LineSegment(V(76.5, 14, 0), V(73.5, 15.7, 0)), False)
sketch16.addGeometry(Part.LineSegment(V(73.5, 15.7, 0), V(73.5, 17.2, 0)), False)
sketch16.addGeometry(Part.LineSegment(V(73.5, 17.2, 0), V(76.5, 15.5, 0)), False)
sketch16.addGeometry(Part.LineSegment(V(73.5, 39.7, 0), V(73.5, 41.2, 0)), False)
sketch16.addGeometry(Part.LineSegment(V(73.5, 41.2, 0), V(76.5, 39.5, 0)), False)
sketch16.addGeometry(Part.LineSegment(V(76.5, 39.5, 0), V(76.5, 38, 0)), False)
sketch16.addGeometry(Part.LineSegment(V(76.5, 38, 0), V(73.5, 39.7, 0)), False)
sketch16.addGeometry(Part.LineSegment(V(76.5, 18.5, 0), V(76.5, 17, 0)), False)
sketch16.addGeometry(Part.LineSegment(V(76.5, 17, 0), V(73.5, 18.7, 0)), False)
sketch16.addGeometry(Part.LineSegment(V(73.5, 18.7, 0), V(73.5, 20.2, 0)), False)
sketch16.addGeometry(Part.LineSegment(V(73.5, 20.2, 0), V(76.5, 18.5, 0)), False)
sketch16.addGeometry(Part.LineSegment(V(73.5, 36.7, 0), V(73.5, 38.2, 0)), False)
sketch16.addGeometry(Part.LineSegment(V(73.5, 38.2, 0), V(76.5, 36.5, 0)), False)
sketch16.addGeometry(Part.LineSegment(V(76.5, 36.5, 0), V(76.5, 35, 0)), False)
sketch16.addGeometry(Part.LineSegment(V(76.5, 35, 0), V(73.5, 36.7, 0)), False)
sketch16.addGeometry(Part.LineSegment(V(76.5, 21.5, 0), V(76.5, 20, 0)), False)
sketch16.addGeometry(Part.LineSegment(V(76.5, 20, 0), V(73.5, 21.7, 0)), False)
sketch16.addGeometry(Part.LineSegment(V(73.5, 21.7, 0), V(73.5, 23.2, 0)), False)
sketch16.addGeometry(Part.LineSegment(V(73.5, 23.2, 0), V(76.5, 21.5, 0)), False)
sketch16.addGeometry(Part.LineSegment(V(73.5, 33.7, 0), V(73.5, 35.2, 0)), False)
sketch16.addGeometry(Part.LineSegment(V(73.5, 35.2, 0), V(76.5, 33.5, 0)), False)
sketch16.addGeometry(Part.LineSegment(V(76.5, 33.5, 0), V(76.5, 32, 0)), False)
sketch16.addGeometry(Part.LineSegment(V(76.5, 32, 0), V(73.5, 33.7, 0)), False)
sketch16.addGeometry(Part.LineSegment(V(76.5, 24.5, 0), V(76.5, 23, 0)), False)
sketch16.addGeometry(Part.LineSegment(V(76.5, 23, 0), V(73.5, 24.7, 0)), False)
sketch16.addGeometry(Part.LineSegment(V(73.5, 24.7, 0), V(73.5, 26.2, 0)), False)
sketch16.addGeometry(Part.LineSegment(V(73.5, 26.2, 0), V(76.5, 24.5, 0)), False)
sketch16.addGeometry(Part.LineSegment(V(73.5, 30.7, 0), V(73.5, 32.2, 0)), False)
sketch16.addGeometry(Part.LineSegment(V(73.5, 32.2, 0), V(76.5, 30.5, 0)), False)
sketch16.addGeometry(Part.LineSegment(V(76.5, 30.5, 0), V(76.5, 29, 0)), False)
sketch16.addGeometry(Part.LineSegment(V(76.5, 29, 0), V(73.5, 30.7, 0)), False)
sketch16.addGeometry(Part.LineSegment(V(76.5, 27.5, 0), V(76.5, 26, 0)), False)
sketch16.addGeometry(Part.LineSegment(V(76.5, 26, 0), V(73.5, 27.7, 0)), False)
sketch16.addGeometry(Part.LineSegment(V(73.5, 27.7, 0), V(73.5, 29.2, 0)), False)
sketch16.addGeometry(Part.LineSegment(V(73.5, 29.2, 0), V(76.5, 27.5, 0)), False)
sketch16.addConstraint(Sketcher.Constraint("Coincident", 0, 2, 1, 1))
sketch16.addConstraint(Sketcher.Constraint("Coincident", 1, 2, 2, 1))
sketch16.addConstraint(Sketcher.Constraint("Coincident", 2, 2, 3, 1))
sketch16.addConstraint(Sketcher.Constraint("Coincident", 3, 2, 0, 1))
sketch16.addConstraint(Sketcher.Constraint("Coincident", 4, 2, 5, 1))
sketch16.addConstraint(Sketcher.Constraint("Coincident", 5, 2, 6, 1))
sketch16.addConstraint(Sketcher.Constraint("Coincident", 6, 2, 7, 1))
sketch16.addConstraint(Sketcher.Constraint("Coincident", 7, 2, 4, 1))
sketch16.addConstraint(Sketcher.Constraint("Coincident", 8, 2, 9, 1))
sketch16.addConstraint(Sketcher.Constraint("Coincident", 9, 2, 10, 1))
sketch16.addConstraint(Sketcher.Constraint("Coincident", 10, 2, 11, 1))
sketch16.addConstraint(Sketcher.Constraint("Coincident", 11, 2, 8, 1))
sketch16.addConstraint(Sketcher.Constraint("Coincident", 12, 2, 13, 1))
sketch16.addConstraint(Sketcher.Constraint("Coincident", 13, 2, 14, 1))
sketch16.addConstraint(Sketcher.Constraint("Coincident", 14, 2, 15, 1))
sketch16.addConstraint(Sketcher.Constraint("Coincident", 15, 2, 12, 1))
sketch16.addConstraint(Sketcher.Constraint("Coincident", 16, 2, 17, 1))
sketch16.addConstraint(Sketcher.Constraint("Coincident", 17, 2, 18, 1))
sketch16.addConstraint(Sketcher.Constraint("Coincident", 18, 2, 19, 1))
sketch16.addConstraint(Sketcher.Constraint("Coincident", 19, 2, 16, 1))
sketch16.addConstraint(Sketcher.Constraint("Coincident", 20, 2, 21, 1))
sketch16.addConstraint(Sketcher.Constraint("Coincident", 21, 2, 22, 1))
sketch16.addConstraint(Sketcher.Constraint("Coincident", 22, 2, 23, 1))
sketch16.addConstraint(Sketcher.Constraint("Coincident", 23, 2, 20, 1))
sketch16.addConstraint(Sketcher.Constraint("Coincident", 24, 2, 25, 1))
sketch16.addConstraint(Sketcher.Constraint("Coincident", 25, 2, 26, 1))
sketch16.addConstraint(Sketcher.Constraint("Coincident", 26, 2, 27, 1))
sketch16.addConstraint(Sketcher.Constraint("Coincident", 27, 2, 24, 1))
sketch16.addConstraint(Sketcher.Constraint("Coincident", 28, 2, 29, 1))
sketch16.addConstraint(Sketcher.Constraint("Coincident", 29, 2, 30, 1))
sketch16.addConstraint(Sketcher.Constraint("Coincident", 30, 2, 31, 1))
sketch16.addConstraint(Sketcher.Constraint("Coincident", 31, 2, 28, 1))
sketch16.addConstraint(Sketcher.Constraint("Coincident", 32, 2, 33, 1))
sketch16.addConstraint(Sketcher.Constraint("Coincident", 33, 2, 34, 1))
sketch16.addConstraint(Sketcher.Constraint("Coincident", 34, 2, 35, 1))
sketch16.addConstraint(Sketcher.Constraint("Coincident", 35, 2, 32, 1))
sketch16.addConstraint(Sketcher.Constraint("Coincident", 36, 2, 37, 1))
sketch16.addConstraint(Sketcher.Constraint("Coincident", 37, 2, 38, 1))
sketch16.addConstraint(Sketcher.Constraint("Coincident", 38, 2, 39, 1))
sketch16.addConstraint(Sketcher.Constraint("Coincident", 39, 2, 36, 1))
sketch16.addConstraint(Sketcher.Constraint("Coincident", 40, 2, 41, 1))
sketch16.addConstraint(Sketcher.Constraint("Coincident", 41, 2, 42, 1))
sketch16.addConstraint(Sketcher.Constraint("Coincident", 42, 2, 43, 1))
sketch16.addConstraint(Sketcher.Constraint("Coincident", 43, 2, 40, 1))
sketch16.addConstraint(Sketcher.Constraint("Vertical", 0))
sketch16.addConstraint(Sketcher.Constraint("Vertical", 2))
sketch16.addConstraint(Sketcher.Constraint("Vertical", 4))
sketch16.addConstraint(Sketcher.Constraint("Vertical", 6))
sketch16.addConstraint(Sketcher.Constraint("Vertical", 8))
sketch16.addConstraint(Sketcher.Constraint("Vertical", 10))
sketch16.addConstraint(Sketcher.Constraint("Vertical", 12))
sketch16.addConstraint(Sketcher.Constraint("Vertical", 14))
sketch16.addConstraint(Sketcher.Constraint("Vertical", 16))
sketch16.addConstraint(Sketcher.Constraint("Vertical", 18))
sketch16.addConstraint(Sketcher.Constraint("Vertical", 20))
sketch16.addConstraint(Sketcher.Constraint("Vertical", 22))
sketch16.addConstraint(Sketcher.Constraint("Vertical", 24))
sketch16.addConstraint(Sketcher.Constraint("Vertical", 26))
sketch16.addConstraint(Sketcher.Constraint("Vertical", 28))
sketch16.addConstraint(Sketcher.Constraint("Vertical", 30))
sketch16.addConstraint(Sketcher.Constraint("Vertical", 32))
sketch16.addConstraint(Sketcher.Constraint("Vertical", 34))
sketch16.addConstraint(Sketcher.Constraint("Vertical", 36))
sketch16.addConstraint(Sketcher.Constraint("Vertical", 38))
sketch16.addConstraint(Sketcher.Constraint("Vertical", 40))
sketch16.addConstraint(Sketcher.Constraint("Vertical", 42))
sketch16.addConstraint(Sketcher.Constraint("Parallel", 1, 3))
sketch16.addConstraint(Sketcher.Constraint("Parallel", 3, 5))
sketch16.addConstraint(Sketcher.Constraint("Parallel", 5, 7))
sketch16.addConstraint(Sketcher.Constraint("Parallel", 7, 9))
sketch16.addConstraint(Sketcher.Constraint("Parallel", 9, 11))
sketch16.addConstraint(Sketcher.Constraint("Parallel", 11, 13))
sketch16.addConstraint(Sketcher.Constraint("Parallel", 13, 15))
sketch16.addConstraint(Sketcher.Constraint("Parallel", 15, 17))
sketch16.addConstraint(Sketcher.Constraint("Parallel", 17, 19))
sketch16.addConstraint(Sketcher.Constraint("Parallel", 19, 21))
sketch16.addConstraint(Sketcher.Constraint("Parallel", 21, 23))
sketch16.addConstraint(Sketcher.Constraint("Parallel", 23, 25))
sketch16.addConstraint(Sketcher.Constraint("Parallel", 25, 27))
sketch16.addConstraint(Sketcher.Constraint("Parallel", 27, 29))
sketch16.addConstraint(Sketcher.Constraint("Parallel", 29, 31))
sketch16.addConstraint(Sketcher.Constraint("Parallel", 31, 33))
sketch16.addConstraint(Sketcher.Constraint("Parallel", 33, 35))
sketch16.addConstraint(Sketcher.Constraint("Parallel", 35, 37))
sketch16.addConstraint(Sketcher.Constraint("Parallel", 37, 39))
sketch16.addConstraint(Sketcher.Constraint("Parallel", 39, 41))
sketch16.addConstraint(Sketcher.Constraint("Parallel", 41, 43))
sketch16.addConstraint(Sketcher.Constraint("Vertical", 3, 2, 4, 2))
sketch16.addConstraint(Sketcher.Constraint("Vertical", 2, 2, 5, 2))
sketch16.addConstraint(Sketcher.Constraint("Vertical", 7, 2, 8, 2))
sketch16.addConstraint(Sketcher.Constraint("Vertical", 6, 2, 9, 2))
sketch16.addConstraint(Sketcher.Constraint("Vertical", 10, 2, 12, 2))
sketch16.addConstraint(Sketcher.Constraint("Vertical", 11, 2, 13, 2))
sketch16.addConstraint(Sketcher.Constraint("Vertical", 14, 2, 16, 2))
sketch16.addConstraint(Sketcher.Constraint("Vertical", 15, 2, 17, 2))
sketch16.addConstraint(Sketcher.Constraint("Vertical", 18, 2, 20, 2))
sketch16.addConstraint(Sketcher.Constraint("Vertical", 19, 2, 21, 2))
sketch16.addConstraint(Sketcher.Constraint("Vertical", 22, 2, 24, 2))
sketch16.addConstraint(Sketcher.Constraint("Vertical", 23, 2, 25, 2))
sketch16.addConstraint(Sketcher.Constraint("Vertical", 26, 2, 28, 2))
sketch16.addConstraint(Sketcher.Constraint("Vertical", 27, 2, 29, 2))
sketch16.addConstraint(Sketcher.Constraint("Vertical", 30, 2, 32, 2))
sketch16.addConstraint(Sketcher.Constraint("Vertical", 31, 2, 33, 2))
sketch16.addConstraint(Sketcher.Constraint("Vertical", 34, 2, 36, 2))
sketch16.addConstraint(Sketcher.Constraint("Vertical", 35, 2, 37, 2))
sketch16.addConstraint(Sketcher.Constraint("Vertical", 38, 2, 40, 2))
sketch16.addConstraint(Sketcher.Constraint("Vertical", 39, 2, 41, 2))
sketch16.addConstraint(Sketcher.Constraint("Equal", 2, 4))
sketch16.addConstraint(Sketcher.Constraint("Equal", 6, 8))
sketch16.addConstraint(Sketcher.Constraint("Equal", 10, 12))
sketch16.addConstraint(Sketcher.Constraint("Equal", 14, 16))
sketch16.addConstraint(Sketcher.Constraint("Equal", 18, 20))
sketch16.addConstraint(Sketcher.Constraint("Equal", 22, 24))
sketch16.addConstraint(Sketcher.Constraint("Equal", 26, 28))
sketch16.addConstraint(Sketcher.Constraint("Equal", 30, 32))
sketch16.addConstraint(Sketcher.Constraint("Equal", 34, 36))
sketch16.addConstraint(Sketcher.Constraint("Equal", 38, 40))
sketch16.addConstraint(Sketcher.Constraint("DistanceY", 0, 2, 0, 1, Q("1.5 mm")))
sketch16.addConstraint(Sketcher.Constraint("DistanceX", 1, 2, 0, 2, Q("3 mm")))
sketch16.addConstraint(Sketcher.Constraint("DistanceY", 0, 2, 4, 2, Q("3 mm")))
sketch16.addConstraint(Sketcher.Constraint("DistanceY", 4, 2, 8, 2, Q("3 mm")))
sketch16.addConstraint(Sketcher.Constraint("DistanceY", 8, 2, 16, 2, Q("3 mm")))
sketch16.addConstraint(Sketcher.Constraint("DistanceY", 20, 2, 12, 2, Q("3 mm")))
sketch16.addConstraint(Sketcher.Constraint("DistanceY", 16, 2, 24, 2, Q("3 mm")))
sketch16.addConstraint(Sketcher.Constraint("DistanceY", 28, 2, 20, 2, Q("3 mm")))
sketch16.addConstraint(Sketcher.Constraint("DistanceY", 24, 2, 32, 2, Q("3 mm")))
sketch16.addConstraint(Sketcher.Constraint("DistanceY", 36, 2, 28, 2, Q("3 mm")))
sketch16.addConstraint(Sketcher.Constraint("DistanceY", 32, 2, 40, 2, Q("3 mm")))
sketch16.addConstraint(Sketcher.Constraint("DistanceY", 40, 2, 38, 2, Q("3 mm")))
sketch16.addConstraint(Sketcher.Constraint("Angle", 1, Q("149.9993 deg")))
sketch16.addConstraint(Sketcher.Constraint("DistanceY", -1, 1, 0, 2, Q("8 mm")))
sketch16.addConstraint(Sketcher.Constraint("DistanceX", -1, 1, 0, 2, Q("76.5 mm")))
pocket8 = body.newObject("PartDesign::Pocket", "Pocket007")
pocket8.Profile = sketch16
pocket8.Length = 30

doc.recompute()
